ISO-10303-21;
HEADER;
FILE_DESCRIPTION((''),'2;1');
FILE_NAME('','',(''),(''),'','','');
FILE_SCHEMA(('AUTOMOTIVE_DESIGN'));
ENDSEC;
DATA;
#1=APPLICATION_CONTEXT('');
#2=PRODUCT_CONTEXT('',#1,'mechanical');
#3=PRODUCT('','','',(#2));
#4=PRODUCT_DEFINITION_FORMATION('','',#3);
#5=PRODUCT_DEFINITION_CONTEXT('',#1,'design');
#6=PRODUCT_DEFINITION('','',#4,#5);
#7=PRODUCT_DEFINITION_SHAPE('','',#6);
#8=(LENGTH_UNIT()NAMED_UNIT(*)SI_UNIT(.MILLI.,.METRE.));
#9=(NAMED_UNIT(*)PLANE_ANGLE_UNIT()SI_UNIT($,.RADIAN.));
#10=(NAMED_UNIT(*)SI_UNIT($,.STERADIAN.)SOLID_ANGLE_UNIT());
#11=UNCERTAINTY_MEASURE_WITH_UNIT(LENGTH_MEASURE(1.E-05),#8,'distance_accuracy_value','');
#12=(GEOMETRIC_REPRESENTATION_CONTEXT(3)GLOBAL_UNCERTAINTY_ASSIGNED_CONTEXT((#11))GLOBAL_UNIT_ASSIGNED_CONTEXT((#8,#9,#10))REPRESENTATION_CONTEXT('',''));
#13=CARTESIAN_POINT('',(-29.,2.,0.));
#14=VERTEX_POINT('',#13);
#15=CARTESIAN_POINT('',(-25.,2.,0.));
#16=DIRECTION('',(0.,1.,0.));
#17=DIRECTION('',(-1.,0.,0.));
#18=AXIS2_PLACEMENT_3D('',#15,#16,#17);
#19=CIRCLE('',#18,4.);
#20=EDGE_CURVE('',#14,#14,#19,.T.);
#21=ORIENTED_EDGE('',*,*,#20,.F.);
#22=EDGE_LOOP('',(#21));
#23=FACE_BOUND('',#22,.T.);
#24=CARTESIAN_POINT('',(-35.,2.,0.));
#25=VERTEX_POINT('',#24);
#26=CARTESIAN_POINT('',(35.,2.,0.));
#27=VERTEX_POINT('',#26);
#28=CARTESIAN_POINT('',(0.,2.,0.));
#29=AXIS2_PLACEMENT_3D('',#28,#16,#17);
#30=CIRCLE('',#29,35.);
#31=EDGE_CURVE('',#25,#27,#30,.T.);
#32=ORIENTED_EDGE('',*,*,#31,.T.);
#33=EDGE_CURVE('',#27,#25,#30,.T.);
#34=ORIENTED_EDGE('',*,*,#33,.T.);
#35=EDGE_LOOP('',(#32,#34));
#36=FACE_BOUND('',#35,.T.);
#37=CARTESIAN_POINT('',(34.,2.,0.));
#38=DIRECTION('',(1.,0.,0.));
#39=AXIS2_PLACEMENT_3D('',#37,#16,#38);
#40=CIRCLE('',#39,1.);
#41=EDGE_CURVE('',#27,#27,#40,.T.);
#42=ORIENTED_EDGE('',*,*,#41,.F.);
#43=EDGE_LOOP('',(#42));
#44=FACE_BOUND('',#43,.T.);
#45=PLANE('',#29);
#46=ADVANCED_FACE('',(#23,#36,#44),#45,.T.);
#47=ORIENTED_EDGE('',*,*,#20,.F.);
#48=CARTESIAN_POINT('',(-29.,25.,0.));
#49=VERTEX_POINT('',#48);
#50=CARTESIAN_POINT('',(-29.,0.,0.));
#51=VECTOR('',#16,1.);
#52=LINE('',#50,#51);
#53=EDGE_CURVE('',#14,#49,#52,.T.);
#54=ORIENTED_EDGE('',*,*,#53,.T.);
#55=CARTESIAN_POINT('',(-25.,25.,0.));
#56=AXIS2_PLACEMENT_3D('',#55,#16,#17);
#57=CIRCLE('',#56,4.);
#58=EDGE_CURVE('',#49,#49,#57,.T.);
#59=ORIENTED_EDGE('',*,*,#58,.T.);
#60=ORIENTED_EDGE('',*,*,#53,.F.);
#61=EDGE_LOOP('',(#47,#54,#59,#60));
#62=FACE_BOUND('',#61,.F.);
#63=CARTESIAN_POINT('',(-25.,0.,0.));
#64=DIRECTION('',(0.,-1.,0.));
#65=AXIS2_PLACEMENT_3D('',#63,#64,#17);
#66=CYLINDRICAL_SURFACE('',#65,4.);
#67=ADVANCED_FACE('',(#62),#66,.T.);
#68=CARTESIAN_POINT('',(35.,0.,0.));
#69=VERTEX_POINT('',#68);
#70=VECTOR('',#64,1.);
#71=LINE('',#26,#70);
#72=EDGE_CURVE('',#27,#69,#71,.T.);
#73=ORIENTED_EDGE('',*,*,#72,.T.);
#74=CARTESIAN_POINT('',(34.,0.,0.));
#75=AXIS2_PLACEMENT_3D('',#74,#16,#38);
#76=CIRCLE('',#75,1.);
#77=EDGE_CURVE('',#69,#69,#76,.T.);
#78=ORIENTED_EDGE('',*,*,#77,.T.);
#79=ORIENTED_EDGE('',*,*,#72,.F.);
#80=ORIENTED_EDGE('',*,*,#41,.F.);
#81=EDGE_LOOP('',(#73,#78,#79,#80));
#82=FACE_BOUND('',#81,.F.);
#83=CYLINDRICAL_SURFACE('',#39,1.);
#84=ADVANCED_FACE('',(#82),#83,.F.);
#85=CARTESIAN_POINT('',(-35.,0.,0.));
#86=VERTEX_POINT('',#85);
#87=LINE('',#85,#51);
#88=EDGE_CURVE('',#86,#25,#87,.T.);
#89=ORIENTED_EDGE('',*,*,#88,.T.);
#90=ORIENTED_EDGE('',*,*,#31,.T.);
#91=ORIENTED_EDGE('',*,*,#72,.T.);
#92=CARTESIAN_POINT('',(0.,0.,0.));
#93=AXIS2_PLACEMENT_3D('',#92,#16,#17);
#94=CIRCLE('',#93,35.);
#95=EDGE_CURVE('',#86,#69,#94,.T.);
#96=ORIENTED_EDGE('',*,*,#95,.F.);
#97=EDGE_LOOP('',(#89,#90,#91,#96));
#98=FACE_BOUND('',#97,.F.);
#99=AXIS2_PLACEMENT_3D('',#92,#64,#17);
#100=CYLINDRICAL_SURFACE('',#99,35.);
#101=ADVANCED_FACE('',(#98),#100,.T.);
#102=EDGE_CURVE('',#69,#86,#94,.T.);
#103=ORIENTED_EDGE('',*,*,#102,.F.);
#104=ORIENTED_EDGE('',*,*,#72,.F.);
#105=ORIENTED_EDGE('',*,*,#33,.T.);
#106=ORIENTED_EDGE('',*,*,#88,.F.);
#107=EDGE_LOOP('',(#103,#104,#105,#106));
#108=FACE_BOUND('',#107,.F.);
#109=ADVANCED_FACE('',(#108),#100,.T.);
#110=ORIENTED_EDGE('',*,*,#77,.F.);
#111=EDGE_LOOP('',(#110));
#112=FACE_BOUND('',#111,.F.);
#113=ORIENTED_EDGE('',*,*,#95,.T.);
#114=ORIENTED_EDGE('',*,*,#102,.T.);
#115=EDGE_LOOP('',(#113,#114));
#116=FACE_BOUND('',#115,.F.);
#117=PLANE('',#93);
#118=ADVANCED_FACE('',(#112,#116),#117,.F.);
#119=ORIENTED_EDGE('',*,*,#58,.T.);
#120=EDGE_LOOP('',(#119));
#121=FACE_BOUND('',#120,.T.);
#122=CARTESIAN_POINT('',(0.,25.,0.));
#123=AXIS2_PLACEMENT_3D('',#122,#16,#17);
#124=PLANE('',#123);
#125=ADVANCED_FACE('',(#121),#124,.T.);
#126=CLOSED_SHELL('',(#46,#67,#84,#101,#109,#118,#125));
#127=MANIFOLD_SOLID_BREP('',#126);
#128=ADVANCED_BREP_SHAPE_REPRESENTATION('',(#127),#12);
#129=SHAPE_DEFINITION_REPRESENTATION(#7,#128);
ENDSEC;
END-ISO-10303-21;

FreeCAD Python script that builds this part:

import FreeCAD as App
import Part
import Sketcher

V = App.Vector

doc = App.newDocument("Part")
body = doc.addObject("PartDesign::Body", "Body")

# Sketch on XZ plane
sketch1 = doc.addObject("Sketcher::SketchObject", "Sketch")
body.addObject(sketch1)
sketch1.AttachmentSupport = (doc.XZ_Plane, [""])
sketch1.MapMode = "FlatFace"
sketch1.addGeometry([
    Part.Circle(V(0, 0, 0), V(0, 0, 1), 35),
    Part.Circle(V(-25, 0, 0), V(0, 0, 1), 4),
], False)
sketch1.addConstraint([
    Sketcher.Constraint("Coincident", 0, 3, -1, 1),
    Sketcher.Constraint("PointOnObject", 1, 3, -1),
    Sketcher.Constraint("Diameter", 0, 70.0),
    Sketcher.Constraint("Diameter", 1, 8.0),
    Sketcher.Constraint("DistanceX", 1, 3, -1, 1, 25.0),
])
pad1 = doc.addObject("PartDesign::Pad", "Pad")
body.addObject(pad1)
pad1.Profile = sketch1
pad1.Length = 2
pad1.Reversed = True

# Sketch on XZ plane
sketch2 = doc.addObject("Sketcher::SketchObject", "Sketch001")
body.addObject(sketch2)
sketch2.AttachmentSupport = (doc.XZ_Plane, [""])
sketch2.MapMode = "FlatFace"
sketch2.addGeometry(Part.Circle(V(-25, 0, 0), V(0, 0, 1), 4), False)
sketch2.addConstraint([
    Sketcher.Constraint("PointOnObject", 0, 3, -1),
    Sketcher.Constraint("Diameter", 0, 8.0),
    Sketcher.Constraint("DistanceX", 0, 3, -1, 1, 25.0),
])
pad2 = doc.addObject("PartDesign::Pad", "Pad001")
body.addObject(pad2)
pad2.Profile = sketch2
pad2.Length = 25
pad2.Reversed = True

# Sketch on XZ plane
sketch3 = doc.addObject("Sketcher::SketchObject", "Sketch002")
body.addObject(sketch3)
sketch3.AttachmentSupport = (doc.XZ_Plane, [""])
sketch3.MapMode = "FlatFace"
sketch3.AttachmentOffset = App.Placement(V(0, 0, -2), App.Rotation())
sketch3.addGeometry(Part.Circle(V(34, 0, 0), V(0, 0, 1), 1), False)
sketch3.addConstraint([
    Sketcher.Constraint("PointOnObject", 0, 3, -1),
    Sketcher.Constraint("Diameter", 0, 2.0),
    Sketcher.Constraint("DistanceX", -1, 1, 0, 3, 34.0),
])
pocket1 = doc.addObject("PartDesign::Pocket", "Pocket")
body.addObject(pocket1)
pocket1.Profile = sketch3
pocket1.Type = "ThroughAll"
pocket1.Reversed = True

doc.recompute()
